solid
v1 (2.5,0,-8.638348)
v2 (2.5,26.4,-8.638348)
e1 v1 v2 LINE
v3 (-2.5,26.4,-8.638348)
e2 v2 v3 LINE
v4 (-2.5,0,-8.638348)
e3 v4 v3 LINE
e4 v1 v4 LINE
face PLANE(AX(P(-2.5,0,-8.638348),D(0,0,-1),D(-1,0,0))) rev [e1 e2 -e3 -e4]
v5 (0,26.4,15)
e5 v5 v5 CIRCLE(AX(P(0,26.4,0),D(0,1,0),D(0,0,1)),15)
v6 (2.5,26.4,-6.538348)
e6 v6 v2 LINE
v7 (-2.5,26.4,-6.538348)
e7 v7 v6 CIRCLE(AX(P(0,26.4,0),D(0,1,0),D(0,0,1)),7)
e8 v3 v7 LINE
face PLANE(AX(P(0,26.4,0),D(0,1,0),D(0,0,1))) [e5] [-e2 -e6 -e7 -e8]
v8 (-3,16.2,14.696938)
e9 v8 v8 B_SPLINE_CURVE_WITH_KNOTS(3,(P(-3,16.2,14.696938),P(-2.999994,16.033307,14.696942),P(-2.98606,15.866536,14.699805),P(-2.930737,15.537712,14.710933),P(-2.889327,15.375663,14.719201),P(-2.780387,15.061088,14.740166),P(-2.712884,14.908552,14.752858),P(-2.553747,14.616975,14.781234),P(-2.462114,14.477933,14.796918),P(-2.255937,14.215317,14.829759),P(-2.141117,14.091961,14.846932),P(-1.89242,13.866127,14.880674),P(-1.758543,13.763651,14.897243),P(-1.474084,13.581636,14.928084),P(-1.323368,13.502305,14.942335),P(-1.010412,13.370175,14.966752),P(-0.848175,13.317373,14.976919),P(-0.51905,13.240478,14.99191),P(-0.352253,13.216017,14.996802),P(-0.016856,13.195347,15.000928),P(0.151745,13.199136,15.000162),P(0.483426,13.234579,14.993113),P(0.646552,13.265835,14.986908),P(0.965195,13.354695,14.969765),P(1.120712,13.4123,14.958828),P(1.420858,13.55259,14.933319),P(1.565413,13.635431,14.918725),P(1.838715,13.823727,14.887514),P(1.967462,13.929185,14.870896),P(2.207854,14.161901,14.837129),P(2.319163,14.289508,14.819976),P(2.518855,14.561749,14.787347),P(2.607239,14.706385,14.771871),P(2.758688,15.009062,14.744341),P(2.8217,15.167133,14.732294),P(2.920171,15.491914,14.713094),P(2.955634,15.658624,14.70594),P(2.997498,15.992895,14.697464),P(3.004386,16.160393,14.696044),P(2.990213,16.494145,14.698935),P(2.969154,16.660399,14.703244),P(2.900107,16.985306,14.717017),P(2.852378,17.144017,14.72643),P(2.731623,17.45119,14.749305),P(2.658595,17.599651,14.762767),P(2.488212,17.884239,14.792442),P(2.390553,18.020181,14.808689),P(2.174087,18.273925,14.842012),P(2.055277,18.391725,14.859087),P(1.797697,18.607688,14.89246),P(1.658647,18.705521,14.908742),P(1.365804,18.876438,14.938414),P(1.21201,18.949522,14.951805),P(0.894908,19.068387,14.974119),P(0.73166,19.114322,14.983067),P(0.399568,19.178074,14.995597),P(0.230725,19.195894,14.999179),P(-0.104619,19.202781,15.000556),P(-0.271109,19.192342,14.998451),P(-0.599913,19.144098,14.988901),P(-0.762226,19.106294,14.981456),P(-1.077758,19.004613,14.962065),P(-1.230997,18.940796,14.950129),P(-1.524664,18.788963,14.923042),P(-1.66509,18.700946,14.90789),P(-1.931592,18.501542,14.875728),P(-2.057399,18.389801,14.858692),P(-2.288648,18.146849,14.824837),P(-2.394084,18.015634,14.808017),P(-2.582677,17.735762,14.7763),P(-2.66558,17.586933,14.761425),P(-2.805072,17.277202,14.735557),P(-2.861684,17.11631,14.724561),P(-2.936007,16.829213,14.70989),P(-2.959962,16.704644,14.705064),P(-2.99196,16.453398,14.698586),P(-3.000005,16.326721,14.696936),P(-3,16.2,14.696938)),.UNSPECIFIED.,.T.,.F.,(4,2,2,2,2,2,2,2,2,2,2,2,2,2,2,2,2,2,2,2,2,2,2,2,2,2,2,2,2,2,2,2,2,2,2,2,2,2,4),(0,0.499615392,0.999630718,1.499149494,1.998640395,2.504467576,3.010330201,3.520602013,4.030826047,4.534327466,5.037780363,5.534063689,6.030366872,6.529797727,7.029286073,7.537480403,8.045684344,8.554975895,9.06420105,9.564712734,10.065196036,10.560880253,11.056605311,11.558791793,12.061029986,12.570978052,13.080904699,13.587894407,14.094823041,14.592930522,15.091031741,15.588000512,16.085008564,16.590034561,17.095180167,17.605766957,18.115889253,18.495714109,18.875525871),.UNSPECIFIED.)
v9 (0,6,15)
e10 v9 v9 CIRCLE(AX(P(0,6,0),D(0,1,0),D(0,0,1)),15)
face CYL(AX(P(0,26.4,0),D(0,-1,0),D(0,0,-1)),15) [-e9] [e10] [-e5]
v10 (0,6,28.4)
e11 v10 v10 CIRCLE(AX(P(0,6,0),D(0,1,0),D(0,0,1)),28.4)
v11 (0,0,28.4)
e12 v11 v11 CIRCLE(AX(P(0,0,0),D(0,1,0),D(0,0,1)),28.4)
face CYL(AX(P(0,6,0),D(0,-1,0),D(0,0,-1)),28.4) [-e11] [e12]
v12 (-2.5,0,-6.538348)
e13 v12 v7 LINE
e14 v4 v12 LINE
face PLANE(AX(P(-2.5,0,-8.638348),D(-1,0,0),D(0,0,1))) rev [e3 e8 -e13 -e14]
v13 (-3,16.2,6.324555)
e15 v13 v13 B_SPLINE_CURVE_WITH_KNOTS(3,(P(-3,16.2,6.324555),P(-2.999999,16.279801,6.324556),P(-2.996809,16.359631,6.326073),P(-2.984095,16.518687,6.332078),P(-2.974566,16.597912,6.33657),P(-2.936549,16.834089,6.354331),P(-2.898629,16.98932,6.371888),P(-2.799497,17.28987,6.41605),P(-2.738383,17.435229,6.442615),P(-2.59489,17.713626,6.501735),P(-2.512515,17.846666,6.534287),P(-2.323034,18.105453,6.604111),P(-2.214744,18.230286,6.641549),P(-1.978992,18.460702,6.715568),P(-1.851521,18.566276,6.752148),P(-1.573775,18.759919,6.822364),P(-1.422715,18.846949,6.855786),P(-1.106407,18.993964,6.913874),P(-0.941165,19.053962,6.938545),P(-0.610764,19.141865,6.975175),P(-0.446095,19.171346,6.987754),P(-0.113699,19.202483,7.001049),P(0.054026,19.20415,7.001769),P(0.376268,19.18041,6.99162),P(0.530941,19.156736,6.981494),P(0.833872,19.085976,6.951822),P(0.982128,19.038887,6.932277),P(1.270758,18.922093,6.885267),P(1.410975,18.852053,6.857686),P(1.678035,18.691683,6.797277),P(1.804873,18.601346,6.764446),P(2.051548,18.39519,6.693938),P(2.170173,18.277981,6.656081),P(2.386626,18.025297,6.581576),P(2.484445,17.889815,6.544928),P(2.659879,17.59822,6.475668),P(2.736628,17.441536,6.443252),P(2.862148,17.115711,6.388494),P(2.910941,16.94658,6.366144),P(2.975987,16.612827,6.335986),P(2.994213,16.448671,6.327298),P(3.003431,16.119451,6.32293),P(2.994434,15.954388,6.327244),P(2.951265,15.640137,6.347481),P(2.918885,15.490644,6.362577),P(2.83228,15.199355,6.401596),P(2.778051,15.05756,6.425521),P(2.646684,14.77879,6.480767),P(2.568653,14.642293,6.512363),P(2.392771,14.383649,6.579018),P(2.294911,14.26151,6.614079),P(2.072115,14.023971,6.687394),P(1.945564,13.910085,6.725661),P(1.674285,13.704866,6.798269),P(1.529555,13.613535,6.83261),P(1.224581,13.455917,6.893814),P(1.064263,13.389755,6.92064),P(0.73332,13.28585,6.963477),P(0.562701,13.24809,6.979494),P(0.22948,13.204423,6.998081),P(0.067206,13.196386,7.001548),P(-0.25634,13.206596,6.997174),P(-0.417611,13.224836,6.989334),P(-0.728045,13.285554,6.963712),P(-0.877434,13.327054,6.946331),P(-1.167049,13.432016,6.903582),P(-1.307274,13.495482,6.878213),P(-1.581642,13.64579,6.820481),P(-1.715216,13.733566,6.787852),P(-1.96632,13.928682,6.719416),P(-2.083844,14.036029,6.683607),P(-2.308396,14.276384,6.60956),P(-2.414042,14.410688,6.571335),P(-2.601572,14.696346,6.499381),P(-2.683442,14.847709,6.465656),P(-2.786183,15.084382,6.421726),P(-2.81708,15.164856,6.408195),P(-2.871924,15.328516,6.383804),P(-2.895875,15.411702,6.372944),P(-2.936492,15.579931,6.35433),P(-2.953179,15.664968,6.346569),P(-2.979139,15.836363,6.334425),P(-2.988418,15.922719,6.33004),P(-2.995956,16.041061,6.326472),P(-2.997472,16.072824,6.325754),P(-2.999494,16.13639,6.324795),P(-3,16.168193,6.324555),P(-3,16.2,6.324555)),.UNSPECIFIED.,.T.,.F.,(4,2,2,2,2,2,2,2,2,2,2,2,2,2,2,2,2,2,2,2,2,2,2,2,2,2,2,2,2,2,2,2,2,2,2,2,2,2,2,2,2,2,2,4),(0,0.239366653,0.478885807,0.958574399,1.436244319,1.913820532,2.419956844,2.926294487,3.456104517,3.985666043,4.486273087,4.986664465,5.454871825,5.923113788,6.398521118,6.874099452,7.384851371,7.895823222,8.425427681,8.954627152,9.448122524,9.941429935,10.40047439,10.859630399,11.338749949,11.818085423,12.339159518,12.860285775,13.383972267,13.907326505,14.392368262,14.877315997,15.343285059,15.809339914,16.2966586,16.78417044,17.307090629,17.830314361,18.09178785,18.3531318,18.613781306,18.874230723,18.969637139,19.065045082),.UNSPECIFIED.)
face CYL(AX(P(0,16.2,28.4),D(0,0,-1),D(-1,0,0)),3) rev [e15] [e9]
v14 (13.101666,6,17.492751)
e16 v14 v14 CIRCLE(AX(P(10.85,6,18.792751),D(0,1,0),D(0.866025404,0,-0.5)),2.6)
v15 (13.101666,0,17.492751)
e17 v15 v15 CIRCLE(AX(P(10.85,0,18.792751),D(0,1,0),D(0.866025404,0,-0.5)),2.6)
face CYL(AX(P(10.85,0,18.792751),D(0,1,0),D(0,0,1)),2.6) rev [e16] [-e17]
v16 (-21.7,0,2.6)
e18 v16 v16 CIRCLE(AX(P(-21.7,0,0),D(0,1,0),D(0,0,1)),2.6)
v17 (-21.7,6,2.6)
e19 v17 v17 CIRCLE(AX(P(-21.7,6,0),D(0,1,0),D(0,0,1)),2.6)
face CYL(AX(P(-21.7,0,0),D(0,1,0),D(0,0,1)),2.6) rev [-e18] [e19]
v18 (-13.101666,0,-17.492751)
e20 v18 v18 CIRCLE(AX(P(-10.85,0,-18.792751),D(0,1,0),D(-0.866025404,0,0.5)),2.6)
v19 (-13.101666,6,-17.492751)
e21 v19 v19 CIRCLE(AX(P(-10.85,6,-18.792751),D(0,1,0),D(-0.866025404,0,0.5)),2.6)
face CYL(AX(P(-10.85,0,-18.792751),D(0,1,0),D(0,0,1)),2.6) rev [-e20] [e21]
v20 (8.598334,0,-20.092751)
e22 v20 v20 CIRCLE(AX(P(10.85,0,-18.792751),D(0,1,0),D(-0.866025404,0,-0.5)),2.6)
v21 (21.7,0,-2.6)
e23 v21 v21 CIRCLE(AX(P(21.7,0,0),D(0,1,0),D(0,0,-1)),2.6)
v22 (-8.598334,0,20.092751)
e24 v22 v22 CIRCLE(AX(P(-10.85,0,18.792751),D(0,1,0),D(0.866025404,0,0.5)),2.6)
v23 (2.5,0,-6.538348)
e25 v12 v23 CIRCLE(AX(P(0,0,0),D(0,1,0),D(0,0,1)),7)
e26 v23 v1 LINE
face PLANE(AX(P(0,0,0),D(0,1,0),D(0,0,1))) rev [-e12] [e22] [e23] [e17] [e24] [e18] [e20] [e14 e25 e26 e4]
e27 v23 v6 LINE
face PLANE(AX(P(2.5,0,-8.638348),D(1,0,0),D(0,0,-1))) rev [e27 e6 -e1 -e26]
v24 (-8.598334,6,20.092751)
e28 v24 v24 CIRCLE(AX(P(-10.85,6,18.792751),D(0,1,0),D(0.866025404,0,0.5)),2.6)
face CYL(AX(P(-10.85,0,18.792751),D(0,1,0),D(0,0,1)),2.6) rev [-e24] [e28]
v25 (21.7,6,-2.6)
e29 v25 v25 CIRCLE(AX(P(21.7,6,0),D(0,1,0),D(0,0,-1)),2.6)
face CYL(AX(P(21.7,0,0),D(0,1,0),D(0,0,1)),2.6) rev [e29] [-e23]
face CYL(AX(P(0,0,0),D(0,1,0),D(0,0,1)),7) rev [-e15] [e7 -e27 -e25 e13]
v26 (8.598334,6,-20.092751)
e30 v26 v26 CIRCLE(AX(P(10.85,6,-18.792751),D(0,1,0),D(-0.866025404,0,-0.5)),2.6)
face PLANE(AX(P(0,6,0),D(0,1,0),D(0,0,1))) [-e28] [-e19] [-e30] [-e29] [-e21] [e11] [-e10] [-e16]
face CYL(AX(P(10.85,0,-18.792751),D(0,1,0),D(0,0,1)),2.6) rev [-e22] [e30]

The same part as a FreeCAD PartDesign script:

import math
import FreeCAD as App
import Part
import Sketcher
Q = App.Units.Quantity

doc = App.newDocument("Part")
body = doc.addObject("PartDesign::Body", "Body")

# Sketch on XZ plane
sketch1 = doc.addObject("Sketcher::SketchObject", "Sketch")
body.addObject(sketch1)
sketch1.AttachmentSupport = (doc.XZ_Plane, [""])
sketch1.MapMode = "FlatFace"
sketch1.addGeometry(Part.Circle(App.Vector(0, 0, 0), App.Vector(0, 0, 1), 28.4), False)
sketch1.addConstraint(Sketcher.Constraint("Coincident", 0, 3, -1, 1))
sketch1.addConstraint(Sketcher.Constraint("Diameter", 0, Q("56.8 mm")))
pad1 = doc.addObject("PartDesign::Pad", "Pad")
body.addObject(pad1)
pad1.Profile = sketch1
pad1.Length = 6
pad1.Reversed = True

# Sketch on XZ plane
sketch2 = doc.addObject("Sketcher::SketchObject", "Sketch001")
body.addObject(sketch2)
sketch2.AttachmentSupport = (doc.XZ_Plane, [""])
sketch2.MapMode = "FlatFace"
sketch2.AttachmentOffset = App.Placement(App.Vector(0, 0, -6), App.Rotation())
sketch2.addGeometry(Part.Circle(App.Vector(0, 0, 0), App.Vector(0, 0, 1), 15), False)
sketch2.addConstraint(Sketcher.Constraint("Coincident", 0, 3, -1, 1))
sketch2.addConstraint(Sketcher.Constraint("Diameter", 0, Q("30 mm")))
pad2 = doc.addObject("PartDesign::Pad", "Pad001")
body.addObject(pad2)
pad2.Profile = sketch2
pad2.Length = 20.4
pad2.Reversed = True

# Sketch on XZ plane
sketch3 = doc.addObject("Sketcher::SketchObject", "Sketch002")
body.addObject(sketch3)
sketch3.AttachmentSupport = (doc.XZ_Plane, [""])
sketch3.MapMode = "FlatFace"
sketch3.AttachmentOffset = App.Placement(App.Vector(0, 0, -26.4), App.Rotation())
sketch3.addGeometry(Part.LineSegment(App.Vector(2.5, -8.638348, 0), App.Vector(-2.5, -8.638348, 0)), False)
sketch3.addGeometry(Part.LineSegment(App.Vector(-2.5, -8.638348, 0), App.Vector(-2.5, -6.538348, 0)), False)
sketch3.addGeometry(Part.ArcOfCircle(Part.Circle(App.Vector(0, 0, 0), App.Vector(0, 0, 1), 7), math.radians(-69.075168), math.radians(249.075168)), False)
sketch3.addGeometry(Part.LineSegment(App.Vector(2.5, -6.538348, 0), App.Vector(2.5, -8.638348, 0)), False)
sketch3.addConstraint(Sketcher.Constraint("Coincident", 0, 2, 1, 1))
sketch3.addConstraint(Sketcher.Constraint("Coincident", 1, 2, 2, 2))
sketch3.addConstraint(Sketcher.Constraint("Coincident", 2, 1, 3, 1))
sketch3.addConstraint(Sketcher.Constraint("Coincident", 3, 2, 0, 1))
sketch3.addConstraint(Sketcher.Constraint("Horizontal", 0))
sketch3.addConstraint(Sketcher.Constraint("Vertical", 1))
sketch3.addConstraint(Sketcher.Constraint("Vertical", 3))
sketch3.addConstraint(Sketcher.Constraint("Coincident", 2, 3, -1, 1))
sketch3.addConstraint(Sketcher.Constraint("Horizontal", 1, 2, 2, 1))
sketch3.addConstraint(Sketcher.Constraint("Radius", 2, Q("7 mm")))
sketch3.addConstraint(Sketcher.Constraint("DistanceX", 0, 2, 0, 1, Q("5 mm")))
sketch3.addConstraint(Sketcher.Constraint("DistanceY", 1, 1, 1, 2, Q("2.1 mm")))
pocket1 = doc.addObject("PartDesign::Pocket", "Pocket")
body.addObject(pocket1)
pocket1.Profile = sketch3
pocket1.Type = "ThroughAll"
pocket1.Reversed = True

# Sketch on XY plane
sketch4 = doc.addObject("Sketcher::SketchObject", "Sketch003")
body.addObject(sketch4)
sketch4.AttachmentSupport = (doc.XY_Plane, [""])
sketch4.MapMode = "FlatFace"
sketch4.addGeometry(Part.Circle(App.Vector(0, 16.2, 0), App.Vector(0, 0, 1), 3), False)
sketch4.addConstraint(Sketcher.Constraint("PointOnObject", 0, 3, -2))
sketch4.addConstraint(Sketcher.Constraint("Diameter", 0, Q("6 mm")))
sketch4.addConstraint(Sketcher.Constraint("DistanceY", -1, 1, 0, 3, Q("16.2 mm")))
pocket2 = doc.addObject("PartDesign::Pocket", "Pocket001")
body.addObject(pocket2)
pocket2.Profile = sketch4
pocket2.Type = "ThroughAll"
pocket2.Reversed = True

# Sketch on XZ plane
sketch5 = doc.addObject("Sketcher::SketchObject", "Sketch004")
body.addObject(sketch5)
sketch5.AttachmentSupport = (doc.XZ_Plane, [""])
sketch5.MapMode = "FlatFace"
sketch5.AttachmentOffset = App.Placement(App.Vector(0, 0, -6), App.Rotation())
sketch5.addGeometry(Part.Circle(App.Vector(-21.7, 0, 0), App.Vector(0, 0, 1), 2.6), False)
sketch5.addConstraint(Sketcher.Constraint("PointOnObject", 0, 3, -1))
sketch5.addConstraint(Sketcher.Constraint("Diameter", 0, Q("5.2 mm")))
sketch5.addConstraint(Sketcher.Constraint("DistanceX", 0, 3, -1, 1, Q("21.7 mm")))
pocket3 = doc.addObject("PartDesign::Pocket", "Pocket002")
body.addObject(pocket3)
pocket3.Profile = sketch5
pocket3.Type = "ThroughAll"
pocket3.Reversed = True
doc.recompute()

polarpattern = doc.addObject("PartDesign::PolarPattern", "PolarPattern")
body.addObject(polarpattern)
polarpattern.Originals = [pocket3]
polarpattern.Axis = (doc.Y_Axis, [""])
polarpattern.Angle = 360
polarpattern.Occurrences = 6
body.Tip = polarpattern

doc.recompute()
